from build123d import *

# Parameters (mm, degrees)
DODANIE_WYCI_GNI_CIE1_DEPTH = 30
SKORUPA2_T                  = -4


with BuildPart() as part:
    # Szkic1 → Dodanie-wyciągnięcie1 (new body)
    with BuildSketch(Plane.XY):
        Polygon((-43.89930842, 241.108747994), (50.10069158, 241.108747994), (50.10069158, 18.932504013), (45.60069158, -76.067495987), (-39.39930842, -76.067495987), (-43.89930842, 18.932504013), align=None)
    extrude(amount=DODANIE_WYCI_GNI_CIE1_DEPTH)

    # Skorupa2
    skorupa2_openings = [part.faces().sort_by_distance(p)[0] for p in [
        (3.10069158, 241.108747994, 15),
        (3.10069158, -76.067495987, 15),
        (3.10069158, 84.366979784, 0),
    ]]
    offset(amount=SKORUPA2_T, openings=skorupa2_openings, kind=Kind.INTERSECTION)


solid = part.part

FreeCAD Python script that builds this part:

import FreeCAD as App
import Part
import Sketcher
Q = App.Units.Quantity


def faces_at(feature, points):
    """Names of the faces that lie closest to the given points."""
    faces = feature.Shape.Faces
    near = lambda p: min(range(len(faces)), key=lambda i: faces[i].distToShape(Part.Vertex(*p))[0])
    return sorted({f"Face{near(p) + 1}" for p in points})

doc = App.newDocument("Part")
body = doc.addObject("PartDesign::Body", "Body")

sketch1 = body.newObject("Sketcher::SketchObject", "Sketch")
sketch1.AttachmentSupport = (doc.getObject("XY_Plane"), [""])
sketch1.MapMode = "FlatFace"
sketch1.addGeometry([
    Part.LineSegment(App.Vector(50, 241, 0), App.Vector(-44, 241, 0)),
    Part.LineSegment(App.Vector(-44, 241, 0), App.Vector(-44, 19, 0)),
    Part.LineSegment(App.Vector(-44, 19, 0), App.Vector(-39, -76, 0)),
    Part.LineSegment(App.Vector(-39, -76, 0), App.Vector(46, -76, 0)),
    Part.LineSegment(App.Vector(46, -76, 0), App.Vector(50, 19, 0)),
    Part.LineSegment(App.Vector(50, 19, 0), App.Vector(50, 241, 0)),
], False)
sketch1.addConstraint([
    Sketcher.Constraint("Coincident", 0, 2, 1, 1),
    Sketcher.Constraint("Coincident", 1, 2, 2, 1),
    Sketcher.Constraint("Coincident", 2, 2, 3, 1),
    Sketcher.Constraint("Coincident", 3, 2, 4, 1),
    Sketcher.Constraint("Coincident", 4, 2, 5, 1),
    Sketcher.Constraint("Coincident", 5, 2, 0, 1),
    Sketcher.Constraint("Horizontal", 0),
    Sketcher.Constraint("Vertical", 1),
    Sketcher.Constraint("Horizontal", 3),
    Sketcher.Constraint("Vertical", 5),
    Sketcher.Constraint("Horizontal", 1, 2, 4, 2),
    Sketcher.Constraint("Equal", 2, 4),
    Sketcher.Constraint("DistanceX", 0, 2, 0, 1, Q("94 mm")),
    Sketcher.Constraint("DistanceX", 3, 1, 3, 2, Q("85 mm")),
    Sketcher.Constraint("DistanceY", 2, 2, 1, 2, Q("95 mm")),
    Sketcher.Constraint("DistanceY", 1, 2, 1, 1, Q("222.176244 mm")),
    Sketcher.Constraint("DistanceX", 0, 2, -1, 1, Q("43.899308 mm")),
    Sketcher.Constraint("DistanceY", -1, 1, 0, 2, Q("241.108748 mm")),
])
pad1 = body.newObject("PartDesign::Pad", "Pad")
pad1.Profile = sketch1
pad1.Length = 30
doc.recompute()

thickness = body.newObject("PartDesign::Thickness", "Thickness")
thickness.Base = (pad1, faces_at(pad1, [(3.101, 241.109, 15), (3.101, -76.067, 15), (3.101, 82.521, 0)]))
thickness.Value = 4
thickness.Reversed = True
thickness.Join = "Intersection"

doc.recompute()
